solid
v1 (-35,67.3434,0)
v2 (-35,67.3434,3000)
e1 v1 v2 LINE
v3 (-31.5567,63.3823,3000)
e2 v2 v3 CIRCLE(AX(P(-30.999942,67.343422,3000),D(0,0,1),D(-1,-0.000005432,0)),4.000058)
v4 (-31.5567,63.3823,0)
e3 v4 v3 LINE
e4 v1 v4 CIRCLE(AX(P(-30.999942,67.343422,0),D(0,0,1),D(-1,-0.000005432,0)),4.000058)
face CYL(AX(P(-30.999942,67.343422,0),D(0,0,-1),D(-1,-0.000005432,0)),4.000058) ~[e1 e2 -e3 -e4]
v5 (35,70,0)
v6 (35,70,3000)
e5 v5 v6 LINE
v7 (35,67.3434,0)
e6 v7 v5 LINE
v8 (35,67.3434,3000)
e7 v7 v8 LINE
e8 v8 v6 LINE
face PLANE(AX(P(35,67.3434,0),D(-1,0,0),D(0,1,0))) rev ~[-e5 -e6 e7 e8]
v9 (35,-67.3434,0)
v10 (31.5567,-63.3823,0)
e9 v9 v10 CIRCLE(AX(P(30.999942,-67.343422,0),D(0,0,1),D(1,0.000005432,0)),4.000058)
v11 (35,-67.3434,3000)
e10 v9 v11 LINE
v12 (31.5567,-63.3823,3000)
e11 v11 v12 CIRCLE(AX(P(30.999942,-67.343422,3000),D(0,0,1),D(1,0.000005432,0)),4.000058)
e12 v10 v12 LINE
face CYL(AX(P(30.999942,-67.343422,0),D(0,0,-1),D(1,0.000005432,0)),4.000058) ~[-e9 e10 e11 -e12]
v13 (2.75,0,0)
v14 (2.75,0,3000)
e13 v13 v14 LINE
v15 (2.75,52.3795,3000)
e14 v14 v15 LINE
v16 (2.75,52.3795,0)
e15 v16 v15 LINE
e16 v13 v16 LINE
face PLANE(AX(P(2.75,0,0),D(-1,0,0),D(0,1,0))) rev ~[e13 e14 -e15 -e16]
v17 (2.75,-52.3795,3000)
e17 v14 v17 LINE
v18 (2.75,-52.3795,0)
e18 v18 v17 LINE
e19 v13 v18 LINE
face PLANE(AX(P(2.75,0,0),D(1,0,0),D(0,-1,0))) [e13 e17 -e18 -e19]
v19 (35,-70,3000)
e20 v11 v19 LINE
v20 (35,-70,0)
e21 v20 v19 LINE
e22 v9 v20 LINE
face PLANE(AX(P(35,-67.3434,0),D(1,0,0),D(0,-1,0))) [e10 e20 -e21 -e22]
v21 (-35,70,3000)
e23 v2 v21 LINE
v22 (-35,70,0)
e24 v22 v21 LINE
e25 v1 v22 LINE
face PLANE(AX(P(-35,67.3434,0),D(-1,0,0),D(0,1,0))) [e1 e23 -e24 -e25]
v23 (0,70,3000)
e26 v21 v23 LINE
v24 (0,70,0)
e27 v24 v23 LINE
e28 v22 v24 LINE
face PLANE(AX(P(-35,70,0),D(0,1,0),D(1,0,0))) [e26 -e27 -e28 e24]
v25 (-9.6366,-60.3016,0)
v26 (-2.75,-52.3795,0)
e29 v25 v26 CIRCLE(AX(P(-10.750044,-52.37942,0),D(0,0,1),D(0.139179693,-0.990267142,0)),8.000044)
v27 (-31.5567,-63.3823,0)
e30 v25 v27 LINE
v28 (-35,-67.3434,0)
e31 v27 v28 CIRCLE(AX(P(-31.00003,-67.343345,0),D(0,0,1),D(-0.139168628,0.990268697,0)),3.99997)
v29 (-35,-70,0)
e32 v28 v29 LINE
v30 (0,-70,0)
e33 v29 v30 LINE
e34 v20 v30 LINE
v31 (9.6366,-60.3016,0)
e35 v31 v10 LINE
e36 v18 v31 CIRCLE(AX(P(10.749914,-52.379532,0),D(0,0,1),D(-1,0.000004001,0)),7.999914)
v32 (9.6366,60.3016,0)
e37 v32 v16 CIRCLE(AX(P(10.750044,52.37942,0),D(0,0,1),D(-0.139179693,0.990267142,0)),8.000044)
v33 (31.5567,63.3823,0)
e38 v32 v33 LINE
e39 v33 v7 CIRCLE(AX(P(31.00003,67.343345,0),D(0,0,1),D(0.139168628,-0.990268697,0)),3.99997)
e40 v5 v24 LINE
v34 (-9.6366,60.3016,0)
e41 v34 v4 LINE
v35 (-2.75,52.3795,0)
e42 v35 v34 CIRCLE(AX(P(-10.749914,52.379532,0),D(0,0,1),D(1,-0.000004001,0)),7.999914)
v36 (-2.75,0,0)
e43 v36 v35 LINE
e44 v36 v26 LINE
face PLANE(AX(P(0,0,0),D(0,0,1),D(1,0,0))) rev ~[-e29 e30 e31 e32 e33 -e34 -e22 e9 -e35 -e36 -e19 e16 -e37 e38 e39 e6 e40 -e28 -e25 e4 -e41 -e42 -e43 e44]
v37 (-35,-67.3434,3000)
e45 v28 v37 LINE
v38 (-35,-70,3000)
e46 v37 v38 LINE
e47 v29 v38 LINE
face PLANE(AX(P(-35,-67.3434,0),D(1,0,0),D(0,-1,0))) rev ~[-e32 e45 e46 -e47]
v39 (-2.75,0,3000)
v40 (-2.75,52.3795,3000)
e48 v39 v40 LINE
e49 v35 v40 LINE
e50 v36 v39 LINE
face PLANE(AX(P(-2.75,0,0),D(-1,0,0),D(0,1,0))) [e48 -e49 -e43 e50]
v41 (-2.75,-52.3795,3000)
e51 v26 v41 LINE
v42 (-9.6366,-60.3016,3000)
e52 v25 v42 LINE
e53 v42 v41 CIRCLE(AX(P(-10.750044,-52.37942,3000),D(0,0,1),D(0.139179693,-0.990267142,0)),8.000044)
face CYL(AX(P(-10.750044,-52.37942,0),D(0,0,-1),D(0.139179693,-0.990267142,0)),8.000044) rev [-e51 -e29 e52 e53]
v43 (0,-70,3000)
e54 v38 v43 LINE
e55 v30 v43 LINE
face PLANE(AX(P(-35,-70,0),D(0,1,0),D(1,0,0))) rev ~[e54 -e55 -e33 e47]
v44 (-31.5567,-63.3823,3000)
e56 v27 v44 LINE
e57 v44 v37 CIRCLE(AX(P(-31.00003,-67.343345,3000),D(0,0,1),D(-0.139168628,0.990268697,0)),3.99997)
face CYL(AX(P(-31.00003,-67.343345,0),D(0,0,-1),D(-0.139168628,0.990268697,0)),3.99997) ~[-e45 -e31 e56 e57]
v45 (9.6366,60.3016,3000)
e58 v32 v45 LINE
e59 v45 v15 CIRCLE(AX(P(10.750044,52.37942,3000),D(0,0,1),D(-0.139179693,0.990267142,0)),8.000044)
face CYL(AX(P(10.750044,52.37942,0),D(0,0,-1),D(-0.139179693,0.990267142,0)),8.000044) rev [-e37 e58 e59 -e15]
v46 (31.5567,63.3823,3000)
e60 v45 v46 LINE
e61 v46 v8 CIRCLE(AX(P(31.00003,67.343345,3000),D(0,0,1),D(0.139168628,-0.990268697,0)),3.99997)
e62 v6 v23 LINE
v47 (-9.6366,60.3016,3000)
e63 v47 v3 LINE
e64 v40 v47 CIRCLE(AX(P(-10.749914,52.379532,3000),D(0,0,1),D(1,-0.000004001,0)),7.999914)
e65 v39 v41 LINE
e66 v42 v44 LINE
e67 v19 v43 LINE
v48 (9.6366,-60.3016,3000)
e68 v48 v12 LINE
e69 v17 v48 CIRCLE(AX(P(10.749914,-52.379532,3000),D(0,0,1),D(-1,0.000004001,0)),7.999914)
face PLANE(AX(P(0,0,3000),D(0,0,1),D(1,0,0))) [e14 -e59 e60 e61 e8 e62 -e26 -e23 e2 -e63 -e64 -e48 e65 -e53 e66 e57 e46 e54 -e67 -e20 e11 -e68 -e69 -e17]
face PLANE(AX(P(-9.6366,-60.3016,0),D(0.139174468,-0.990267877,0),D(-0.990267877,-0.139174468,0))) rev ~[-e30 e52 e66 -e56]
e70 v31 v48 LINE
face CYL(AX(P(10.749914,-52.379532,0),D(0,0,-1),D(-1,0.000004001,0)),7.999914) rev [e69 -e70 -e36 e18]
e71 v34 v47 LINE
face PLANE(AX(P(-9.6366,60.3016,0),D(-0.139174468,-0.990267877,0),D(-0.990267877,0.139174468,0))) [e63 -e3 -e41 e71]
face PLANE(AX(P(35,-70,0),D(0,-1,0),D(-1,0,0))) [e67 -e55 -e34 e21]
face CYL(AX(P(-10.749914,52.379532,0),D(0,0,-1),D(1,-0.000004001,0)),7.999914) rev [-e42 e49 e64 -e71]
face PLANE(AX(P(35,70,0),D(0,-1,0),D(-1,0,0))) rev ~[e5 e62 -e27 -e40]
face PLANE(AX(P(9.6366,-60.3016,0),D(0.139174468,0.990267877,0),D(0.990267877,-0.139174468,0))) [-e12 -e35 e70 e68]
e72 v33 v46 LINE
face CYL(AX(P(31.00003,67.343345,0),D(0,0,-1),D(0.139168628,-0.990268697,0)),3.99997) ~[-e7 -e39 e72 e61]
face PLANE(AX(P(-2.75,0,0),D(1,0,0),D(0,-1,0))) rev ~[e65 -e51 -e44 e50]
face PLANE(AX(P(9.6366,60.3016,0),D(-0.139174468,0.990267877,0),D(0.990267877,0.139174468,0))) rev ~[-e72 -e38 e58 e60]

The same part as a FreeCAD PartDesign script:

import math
import FreeCAD as App
import Part
import Sketcher
from FreeCAD import Vector
Q = App.Units.Quantity

doc = App.newDocument("Part")
body = doc.addObject("PartDesign::Body", "Body")

# Sketch on XY plane
sketch1 = body.newObject("Sketcher::SketchObject", "Sketch")
sketch1.AttachmentSupport = (doc.getObject("XY_Plane"), [""])
sketch1.MapMode = "FlatFace"
sketch1.addGeometry([
    Part.LineSegment(Vector(-2.8, 52.4, 0), Vector(-2.8, -52.4, 0)),  # 0
    Part.ArcOfCircle(Part.Circle(Vector(-10.8, -52.4, 0), Vector(0, 0, 1), 8), math.radians(-82), math.radians(0)),  # 1
    Part.LineSegment(Vector(-9.6, -60.3, 0), Vector(-31.6, -63.4, 0)),  # 2
    Part.ArcOfCircle(Part.Circle(Vector(-31, -67.3, 0), Vector(0, 0, 1), 4), math.radians(98), math.radians(180)),  # 3
    Part.LineSegment(Vector(-35, -67.3, 0), Vector(-35, -70, 0)),  # 4
    Part.LineSegment(Vector(-35, -70, 0), Vector(35, -70, 0)),  # 5
    Part.LineSegment(Vector(35, -70, 0), Vector(35, -67.3, 0)),  # 6
    Part.ArcOfCircle(Part.Circle(Vector(31, -67.3, 0), Vector(0, 0, 1), 4), math.radians(0), math.radians(82)),  # 7
    Part.LineSegment(Vector(31.6, -63.4, 0), Vector(9.6, -60.3, 0)),  # 8
    Part.ArcOfCircle(Part.Circle(Vector(10.8, -52.4, 0), Vector(0, 0, 1), 8), math.radians(180), math.radians(262)),  # 9
    Part.LineSegment(Vector(2.8, -52.4, 0), Vector(2.8, 52.4, 0)),  # 10
    Part.ArcOfCircle(Part.Circle(Vector(10.8, 52.4, 0), Vector(0, 0, 1), 8), math.radians(98), math.radians(180)),  # 11
    Part.LineSegment(Vector(9.6, 60.3, 0), Vector(31.6, 63.4, 0)),  # 12
    Part.ArcOfCircle(Part.Circle(Vector(31, 67.3, 0), Vector(0, 0, 1), 4), math.radians(-82), math.radians(0)),  # 13
    Part.LineSegment(Vector(35, 67.3, 0), Vector(35, 70, 0)),  # 14
    Part.LineSegment(Vector(35, 70, 0), Vector(-35, 70, 0)),  # 15
    Part.LineSegment(Vector(-35, 70, 0), Vector(-35, 67.3, 0)),  # 16
    Part.ArcOfCircle(Part.Circle(Vector(-31, 67.3, 0), Vector(0, 0, 1), 4), math.radians(180), math.radians(262)),  # 17
    Part.LineSegment(Vector(-31.6, 63.4, 0), Vector(-9.6, 60.3, 0)),  # 18
    Part.ArcOfCircle(Part.Circle(Vector(-10.8, 52.4, 0), Vector(0, 0, 1), 8), math.radians(0), math.radians(82)),  # 19
], False)
sketch1.addConstraint([
    Sketcher.Constraint("Tangent", 0, 2, 1, 2),
    Sketcher.Constraint("Tangent", 1, 1, 2, 1),
    Sketcher.Constraint("Tangent", 2, 2, 3, 1),
    Sketcher.Constraint("Tangent", 3, 2, 4, 1),
    Sketcher.Constraint("Coincident", 4, 2, 5, 1),
    Sketcher.Constraint("Coincident", 5, 2, 6, 1),
    Sketcher.Constraint("Tangent", 6, 2, 7, 1),
    Sketcher.Constraint("Tangent", 7, 2, 8, 1),
    Sketcher.Constraint("Tangent", 8, 2, 9, 2),
    Sketcher.Constraint("Tangent", 9, 1, 10, 1),
    Sketcher.Constraint("Tangent", 10, 2, 11, 2),
    Sketcher.Constraint("Tangent", 11, 1, 12, 1),
    Sketcher.Constraint("Tangent", 12, 2, 13, 1),
    Sketcher.Constraint("Tangent", 13, 2, 14, 1),
    Sketcher.Constraint("Coincident", 14, 2, 15, 1),
    Sketcher.Constraint("Coincident", 15, 2, 16, 1),
    Sketcher.Constraint("Tangent", 16, 2, 17, 1),
    Sketcher.Constraint("Tangent", 17, 2, 18, 1),
    Sketcher.Constraint("Tangent", 18, 2, 19, 2),
    Sketcher.Constraint("Tangent", 19, 1, 0, 1),
    Sketcher.Constraint("Vertical", 0),
    Sketcher.Constraint("Vertical", 4),
    Sketcher.Constraint("Horizontal", 5),
    Sketcher.Constraint("Vertical", 6),
    Sketcher.Constraint("Vertical", 10),
    Sketcher.Constraint("Vertical", 14),
    Sketcher.Constraint("Horizontal", 15),
    Sketcher.Constraint("Vertical", 16),
    Sketcher.Constraint("Equal", 3, 7),
    Sketcher.Constraint("Equal", 1, 9),
    Sketcher.Constraint("Equal", 9, 11),
    Sketcher.Constraint("Equal", 7, 13),
    Sketcher.Constraint("Equal", 13, 17),
    Sketcher.Constraint("Equal", 11, 19),
    Sketcher.Constraint("Symmetric", 1, 3, 11, 3, -1, 1),
    Sketcher.Constraint("Symmetric", 3, 3, 13, 3, -1, 1),
    Sketcher.Constraint("Symmetric", 7, 3, 17, 3, -1, 1),
    Sketcher.Constraint("Symmetric", 3, 3, 7, 3, -2),
    Sketcher.Constraint("Parallel", 8, 18),
    Sketcher.Constraint("Horizontal", 1, 3, 9, 3),
    Sketcher.Constraint("Equal", 6, 14),
    Sketcher.Constraint("Radius", 1, 8.0),
    Sketcher.Constraint("Radius", 3, 4.0),
    Sketcher.Constraint("DistanceX", 5, 1, 5, 2, 70.0),
    Sketcher.Constraint("Angle", 12, Q("8 deg")),
    Sketcher.Constraint("DistanceY", 4, 2, -1, 1, 70.0),
    Sketcher.Constraint("DistanceX", 0, 2, -1, 1, 2.75),
    Sketcher.Constraint("DistanceY", 0, 2, 0, 1, 104.759),
])
pad1 = body.newObject("PartDesign::Pad", "Pad")
pad1.Profile = sketch1
pad1.Length = 3000

doc.recompute()
